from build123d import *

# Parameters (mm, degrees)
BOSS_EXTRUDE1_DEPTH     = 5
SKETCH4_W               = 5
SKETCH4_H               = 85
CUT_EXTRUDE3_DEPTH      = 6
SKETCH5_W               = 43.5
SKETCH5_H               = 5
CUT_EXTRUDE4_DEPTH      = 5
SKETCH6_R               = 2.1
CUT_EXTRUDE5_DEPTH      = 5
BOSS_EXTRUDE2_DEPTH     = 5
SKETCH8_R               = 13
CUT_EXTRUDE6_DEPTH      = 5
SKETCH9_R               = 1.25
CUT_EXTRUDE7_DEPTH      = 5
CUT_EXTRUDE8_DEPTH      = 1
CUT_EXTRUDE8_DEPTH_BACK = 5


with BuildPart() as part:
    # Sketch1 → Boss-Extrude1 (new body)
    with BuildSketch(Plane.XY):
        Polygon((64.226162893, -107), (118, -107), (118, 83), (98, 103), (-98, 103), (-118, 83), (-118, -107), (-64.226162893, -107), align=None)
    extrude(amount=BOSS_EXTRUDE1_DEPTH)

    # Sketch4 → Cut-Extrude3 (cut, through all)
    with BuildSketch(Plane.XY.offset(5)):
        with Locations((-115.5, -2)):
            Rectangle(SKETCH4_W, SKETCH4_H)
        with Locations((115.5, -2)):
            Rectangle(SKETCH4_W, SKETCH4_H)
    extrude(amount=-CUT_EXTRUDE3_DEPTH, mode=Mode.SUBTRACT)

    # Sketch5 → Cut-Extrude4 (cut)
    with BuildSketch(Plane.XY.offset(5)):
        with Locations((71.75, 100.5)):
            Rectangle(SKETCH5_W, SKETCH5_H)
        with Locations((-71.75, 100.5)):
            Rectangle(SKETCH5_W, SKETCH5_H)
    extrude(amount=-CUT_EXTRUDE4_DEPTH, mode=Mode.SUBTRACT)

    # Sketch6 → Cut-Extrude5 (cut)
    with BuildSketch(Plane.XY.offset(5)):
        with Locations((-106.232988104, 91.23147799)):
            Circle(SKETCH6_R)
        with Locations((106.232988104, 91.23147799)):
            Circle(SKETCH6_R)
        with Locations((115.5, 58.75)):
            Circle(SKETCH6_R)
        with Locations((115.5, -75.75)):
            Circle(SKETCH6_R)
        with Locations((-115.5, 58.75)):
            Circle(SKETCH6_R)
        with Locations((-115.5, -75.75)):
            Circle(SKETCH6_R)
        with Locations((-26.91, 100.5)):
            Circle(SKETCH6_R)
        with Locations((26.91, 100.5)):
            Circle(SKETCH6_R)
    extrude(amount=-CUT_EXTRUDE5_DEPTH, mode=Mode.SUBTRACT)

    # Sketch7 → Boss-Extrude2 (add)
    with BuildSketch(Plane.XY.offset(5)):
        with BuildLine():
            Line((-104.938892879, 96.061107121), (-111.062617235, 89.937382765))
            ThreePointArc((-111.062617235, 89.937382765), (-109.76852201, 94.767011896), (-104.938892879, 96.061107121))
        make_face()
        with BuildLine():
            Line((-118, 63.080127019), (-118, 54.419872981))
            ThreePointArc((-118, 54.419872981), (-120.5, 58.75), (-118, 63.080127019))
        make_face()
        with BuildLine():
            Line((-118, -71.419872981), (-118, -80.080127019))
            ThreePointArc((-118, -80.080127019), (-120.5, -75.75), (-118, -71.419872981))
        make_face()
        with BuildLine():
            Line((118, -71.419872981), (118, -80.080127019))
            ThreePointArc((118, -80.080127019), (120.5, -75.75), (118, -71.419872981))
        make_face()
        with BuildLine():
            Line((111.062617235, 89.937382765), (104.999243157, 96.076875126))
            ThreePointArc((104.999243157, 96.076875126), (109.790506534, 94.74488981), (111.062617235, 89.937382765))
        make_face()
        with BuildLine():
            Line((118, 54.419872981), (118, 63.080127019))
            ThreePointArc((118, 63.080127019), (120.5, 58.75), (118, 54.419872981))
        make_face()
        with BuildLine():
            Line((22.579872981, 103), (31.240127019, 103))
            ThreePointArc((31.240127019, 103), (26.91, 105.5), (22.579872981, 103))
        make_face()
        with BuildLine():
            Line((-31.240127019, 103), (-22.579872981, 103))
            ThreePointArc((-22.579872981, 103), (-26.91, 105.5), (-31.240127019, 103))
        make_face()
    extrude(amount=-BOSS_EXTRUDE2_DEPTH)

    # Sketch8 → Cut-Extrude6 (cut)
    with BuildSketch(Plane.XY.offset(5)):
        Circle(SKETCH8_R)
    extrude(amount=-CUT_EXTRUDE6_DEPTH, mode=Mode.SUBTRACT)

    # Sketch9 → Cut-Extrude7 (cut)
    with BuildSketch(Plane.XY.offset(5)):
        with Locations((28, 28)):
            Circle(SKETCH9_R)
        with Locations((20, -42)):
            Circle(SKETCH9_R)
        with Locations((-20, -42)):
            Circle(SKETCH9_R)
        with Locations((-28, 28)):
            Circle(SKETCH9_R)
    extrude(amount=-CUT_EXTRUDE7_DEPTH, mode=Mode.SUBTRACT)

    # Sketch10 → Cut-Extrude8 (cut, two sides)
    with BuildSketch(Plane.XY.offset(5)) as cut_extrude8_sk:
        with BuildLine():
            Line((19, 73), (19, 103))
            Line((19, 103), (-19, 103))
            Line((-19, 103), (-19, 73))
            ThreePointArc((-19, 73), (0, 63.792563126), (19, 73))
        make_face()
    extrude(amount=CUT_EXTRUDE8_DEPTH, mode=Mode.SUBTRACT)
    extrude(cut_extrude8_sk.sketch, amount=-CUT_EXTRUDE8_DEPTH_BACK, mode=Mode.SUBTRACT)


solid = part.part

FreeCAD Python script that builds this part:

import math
import FreeCAD as App
import Part
import Sketcher
from FreeCAD import Vector
Q = App.Units.Quantity

doc = App.newDocument("Part")
params = doc.addObject("Spreadsheet::Sheet", "Params")
for row, (alias, value) in enumerate([
    ("sketch1_width", "196 mm"),
    ("sketch1_width2", "236 mm"),
    ("sketch1_height", "190 mm"),
    ("pad1_length", "5 mm"),
    ("sketch2_width", "5 mm"),
    ("sketch2_height", "85 mm"),
    ("sketch3_height", "5 mm"),
    ("sketch3_width", "43.5 mm"),
    ("pocket2_length", "5 mm"),
    ("sketch4_diameter", "4.2 mm"),
    ("pocket3_length", "5 mm"),
    ("sketch5_radius", "5 mm"),
    ("pad2_length", "5 mm"),
    ("sketch6_diameter", "26 mm"),
    ("pocket4_length", "5 mm"),
    ("sketch7_diameter", "2.5 mm"),
    ("pocket5_length", "5 mm"),
    ("sketch8_width", "38 mm"),
    ("sketch8_height", "30 mm"),
], start=1):
    params.set(f"A{row}", alias)
    params.set(f"B{row}", "=" + value)
    params.setAlias(f"B{row}", alias)

body = doc.addObject("PartDesign::Body", "Body")
body.AllowCompound = True

sketch1 = body.newObject("Sketcher::SketchObject", "Sketch")
sketch1.AttachmentSupport = (doc.getObject("XY_Plane"), [""])
sketch1.MapMode = "FlatFace"
sketch1.addGeometry([
    Part.LineSegment(Vector(118, -107, 0), Vector(118, 83, 0)),
    Part.LineSegment(Vector(118, 83, 0), Vector(98, 103, 0)),
    Part.LineSegment(Vector(98, 103, 0), Vector(-98, 103, 0)),
    Part.LineSegment(Vector(-98, 103, 0), Vector(-118, 83, 0)),
    Part.LineSegment(Vector(-118, 83, 0), Vector(-118, -107, 0)),
    Part.LineSegment(Vector(-118, -107, 0), Vector(118, -107, 0)),
], False)
sketch1.addConstraint([
    Sketcher.Constraint("Coincident", 0, 2, 1, 1),
    Sketcher.Constraint("Coincident", 1, 2, 2, 1),
    Sketcher.Constraint("Coincident", 2, 2, 3, 1),
    Sketcher.Constraint("Coincident", 3, 2, 4, 1),
    Sketcher.Constraint("Coincident", 4, 2, 5, 1),
    Sketcher.Constraint("Coincident", 5, 2, 0, 1),
    Sketcher.Constraint("Vertical", 0),
    Sketcher.Constraint("Horizontal", 2),
    Sketcher.Constraint("Vertical", 4),
    Sketcher.Constraint("Horizontal", 5),
    Sketcher.Constraint("Symmetric", 0, 2, 3, 2, -2),
    Sketcher.Constraint("Perpendicular", 1, 3),
    Sketcher.Constraint("Equal", 1, 3),
    Sketcher.Constraint("DistanceX", 2, 2, 2, 1, Q("196 mm")),
    Sketcher.Constraint("DistanceX", 5, 1, 5, 2, Q("236 mm")),
    Sketcher.Constraint("DistanceY", 0, 1, 0, 2, Q("190 mm")),
    Sketcher.Constraint("DistanceY", -1, 1, 0, 2, Q("83 mm")),
])
sketch1.setExpression("Constraints[13]", "Params.sketch1_width")
sketch1.setExpression("Constraints[14]", "Params.sketch1_width2")
sketch1.setExpression("Constraints[15]", "Params.sketch1_height")
pad1 = body.newObject("PartDesign::Pad", "Pad")
pad1.Profile = sketch1
pad1.setExpression("Length", "Params.pad1_length")

sketch2 = body.newObject("Sketcher::SketchObject", "Sketch001")
sketch2.AttachmentSupport = (doc.getObject("XY_Plane"), [""])
sketch2.MapMode = "FlatFace"
sketch2.AttachmentOffset = App.Placement(Vector(0, 0, 5), App.Rotation())
sketch2.addGeometry([
    Part.LineSegment(Vector(-118, 40, 0), Vector(-118, -44, 0)),
    Part.LineSegment(Vector(-118, -44, 0), Vector(-113, -44, 0)),
    Part.LineSegment(Vector(-113, -44, 0), Vector(-113, 40, 0)),
    Part.LineSegment(Vector(-113, 40, 0), Vector(-118, 40, 0)),
    Part.LineSegment(Vector(113, 40, 0), Vector(113, -44, 0)),
    Part.LineSegment(Vector(113, -44, 0), Vector(118, -44, 0)),
    Part.LineSegment(Vector(118, -44, 0), Vector(118, 40, 0)),
    Part.LineSegment(Vector(118, 40, 0), Vector(113, 40, 0)),
], False)
sketch2.addConstraint([
    Sketcher.Constraint("Coincident", 0, 2, 1, 1),
    Sketcher.Constraint("Coincident", 1, 2, 2, 1),
    Sketcher.Constraint("Coincident", 2, 2, 3, 1),
    Sketcher.Constraint("Coincident", 3, 2, 0, 1),
    Sketcher.Constraint("Coincident", 4, 2, 5, 1),
    Sketcher.Constraint("Coincident", 5, 2, 6, 1),
    Sketcher.Constraint("Coincident", 6, 2, 7, 1),
    Sketcher.Constraint("Coincident", 7, 2, 4, 1),
    Sketcher.Constraint("Vertical", 0),
    Sketcher.Constraint("Horizontal", 1),
    Sketcher.Constraint("Vertical", 2),
    Sketcher.Constraint("Horizontal", 3),
    Sketcher.Constraint("Vertical", 4),
    Sketcher.Constraint("Horizontal", 5),
    Sketcher.Constraint("Vertical", 6),
    Sketcher.Constraint("Horizontal", 7),
    Sketcher.Constraint("Symmetric", 1, 2, 4, 2, -2),
    Sketcher.Constraint("Symmetric", 3, 2, 6, 2, -2),
    Sketcher.Constraint("DistanceX", 1, 1, 1, 2, Q("5 mm")),
    Sketcher.Constraint("DistanceY", 0, 2, 0, 1, Q("85 mm")),
    Sketcher.Constraint("DistanceX", 0, 2, -1, 1, Q("118 mm")),
    Sketcher.Constraint("DistanceY", 0, 2, -1, 1, Q("44.5 mm")),
])
sketch2.setExpression("Constraints[18]", "Params.sketch2_width")
sketch2.setExpression("Constraints[19]", "Params.sketch2_height")
pocket1 = body.newObject("PartDesign::Pocket", "Pocket")
pocket1.Profile = sketch2
pocket1.Type = "ThroughAll"

sketch3 = body.newObject("Sketcher::SketchObject", "Sketch002")
sketch3.AttachmentSupport = (doc.getObject("XY_Plane"), [""])
sketch3.MapMode = "FlatFace"
sketch3.AttachmentOffset = App.Placement(Vector(0, 0, 5), App.Rotation())
sketch3.addGeometry([
    Part.LineSegment(Vector(50, 103, 0), Vector(50, 98, 0)),
    Part.LineSegment(Vector(50, 98, 0), Vector(94, 98, 0)),
    Part.LineSegment(Vector(94, 98, 0), Vector(94, 103, 0)),
    Part.LineSegment(Vector(94, 103, 0), Vector(50, 103, 0)),
    Part.LineSegment(Vector(-94, 103, 0), Vector(-94, 98, 0)),
    Part.LineSegment(Vector(-94, 98, 0), Vector(-50, 98, 0)),
    Part.LineSegment(Vector(-50, 98, 0), Vector(-50, 103, 0)),
    Part.LineSegment(Vector(-50, 103, 0), Vector(-94, 103, 0)),
], False)
sketch3.addConstraint([
    Sketcher.Constraint("Coincident", 0, 2, 1, 1),
    Sketcher.Constraint("Coincident", 1, 2, 2, 1),
    Sketcher.Constraint("Coincident", 2, 2, 3, 1),
    Sketcher.Constraint("Coincident", 3, 2, 0, 1),
    Sketcher.Constraint("Coincident", 4, 2, 5, 1),
    Sketcher.Constraint("Coincident", 5, 2, 6, 1),
    Sketcher.Constraint("Coincident", 6, 2, 7, 1),
    Sketcher.Constraint("Coincident", 7, 2, 4, 1),
    Sketcher.Constraint("Vertical", 0),
    Sketcher.Constraint("Horizontal", 1),
    Sketcher.Constraint("Vertical", 2),
    Sketcher.Constraint("Horizontal", 3),
    Sketcher.Constraint("Vertical", 4),
    Sketcher.Constraint("Horizontal", 5),
    Sketcher.Constraint("Vertical", 6),
    Sketcher.Constraint("Horizontal", 7),
    Sketcher.Constraint("Symmetric", 1, 2, 4, 2, -2),
    Sketcher.Constraint("Symmetric", 3, 2, 6, 2, -2),
    Sketcher.Constraint("DistanceY", 0, 2, 0, 1, Q("5 mm")),
    Sketcher.Constraint("DistanceX", 1, 1, 1, 2, Q("43.5 mm")),
    Sketcher.Constraint("DistanceX", -1, 1, 0, 2, Q("50 mm")),
    Sketcher.Constraint("DistanceY", -1, 1, 0, 2, Q("98 mm")),
])
sketch3.setExpression("Constraints[18]", "Params.sketch3_height")
sketch3.setExpression("Constraints[19]", "Params.sketch3_width")
pocket2 = body.newObject("PartDesign::Pocket", "Pocket001")
pocket2.Profile = sketch3
pocket2.setExpression("Length", "Params.pocket2_length")

sketch4 = body.newObject("Sketcher::SketchObject", "Sketch003")
sketch4.AttachmentSupport = (doc.getObject("XY_Plane"), [""])
sketch4.MapMode = "FlatFace"
sketch4.AttachmentOffset = App.Placement(Vector(0, 0, 5), App.Rotation())
sketch4.addGeometry([
    Part.Circle(Vector(-106.2, 91.2, 0), Vector(0, 0, 1), 2.1),
    Part.Circle(Vector(106.2, 91.2, 0), Vector(0, 0, 1), 2.1),
    Part.Circle(Vector(115.5, 58.8, 0), Vector(0, 0, 1), 2.1),
    Part.Circle(Vector(115.5, -75.8, 0), Vector(0, 0, 1), 2.1),
    Part.Circle(Vector(-115.5, 58.8, 0), Vector(0, 0, 1), 2.1),
    Part.Circle(Vector(-115.5, -75.8, 0), Vector(0, 0, 1), 2.1),
    Part.Circle(Vector(-26.9, 100.5, 0), Vector(0, 0, 1), 2.1),
    Part.Circle(Vector(26.9, 100.5, 0), Vector(0, 0, 1), 2.1),
], False)
sketch4.addConstraint([
    Sketcher.Constraint("Equal", 0, 1),
    Sketcher.Constraint("Equal", 1, 2),
    Sketcher.Constraint("Equal", 2, 3),
    Sketcher.Constraint("Equal", 3, 4),
    Sketcher.Constraint("Equal", 4, 5),
    Sketcher.Constraint("Equal", 5, 6),
    Sketcher.Constraint("Equal", 6, 7),
    Sketcher.Constraint("Symmetric", 0, 3, 1, 3, -2),
    Sketcher.Constraint("Symmetric", 2, 3, 4, 3, -2),
    Sketcher.Constraint("Symmetric", 3, 3, 5, 3, -2),
    Sketcher.Constraint("Symmetric", 6, 3, 7, 3, -2),
    Sketcher.Constraint("Vertical", 2, 3, 3, 3),
    Sketcher.Constraint("Diameter", 0, Q("4.2 mm")),
    Sketcher.Constraint("DistanceX", 4, 3, 2, 3, Q("231 mm")),
    Sketcher.Constraint("DistanceY", -1, 1, 6, 3, Q("100.5 mm")),
    Sketcher.Constraint("DistanceY", 3, 3, 2, 3, Q("134.5 mm")),
    Sketcher.Constraint("DistanceY", -1, 1, 2, 3, Q("58.75 mm")),
    Sketcher.Constraint("DistanceX", 6, 3, -1, 1, Q("26.91 mm")),
    Sketcher.Constraint("DistanceX", 0, 3, -1, 1, Q("106.232988 mm")),
    Sketcher.Constraint("DistanceY", -1, 1, 0, 3, Q("91.231478 mm")),
])
sketch4.setExpression("Constraints[12]", "Params.sketch4_diameter")
pocket3 = body.newObject("PartDesign::Pocket", "Pocket002")
pocket3.Profile = sketch4
pocket3.setExpression("Length", "Params.pocket3_length")

sketch5 = body.newObject("Sketcher::SketchObject", "Sketch004")
sketch5.AttachmentSupport = (doc.getObject("XY_Plane"), [""])
sketch5.MapMode = "FlatFace"
sketch5.AttachmentOffset = App.Placement(Vector(0, 0, 5), App.Rotation())
sketch5.addGeometry([
    Part.LineSegment(Vector(-111.1, 89.9, 0), Vector(-104.9, 96.1, 0)),
    Part.ArcOfCircle(Part.Circle(Vector(-106.2, 91.2, 0), Vector(0, 0, 1), 5), math.radians(75), math.radians(195)),
    Part.LineSegment(Vector(-118, 54.4, 0), Vector(-118, 63.1, 0)),
    Part.ArcOfCircle(Part.Circle(Vector(-115.5, 58.8, 0), Vector(0, 0, 1), 5), math.radians(120), math.radians(240)),
    Part.LineSegment(Vector(-118, -80.1, 0), Vector(-118, -71.4, 0)),
    Part.ArcOfCircle(Part.Circle(Vector(-115.5, -75.8, 0), Vector(0, 0, 1), 5), math.radians(120), math.radians(240)),
    Part.LineSegment(Vector(118, -71.4, 0), Vector(118, -80.1, 0)),
    Part.ArcOfCircle(Part.Circle(Vector(115.5, -75.8, 0), Vector(0, 0, 1), 5), math.radians(-60), math.radians(60)),
    Part.LineSegment(Vector(105, 96.1, 0), Vector(111.1, 89.9, 0)),
    Part.ArcOfCircle(Part.Circle(Vector(106.2, 91.2, 0), Vector(0, 0, 1), 5), math.radians(-15), math.radians(104)),
    Part.LineSegment(Vector(118, 63.1, 0), Vector(118, 54.4, 0)),
    Part.ArcOfCircle(Part.Circle(Vector(115.5, 58.8, 0), Vector(0, 0, 1), 5), math.radians(-60), math.radians(60)),
    Part.LineSegment(Vector(22.6, 103, 0), Vector(31.2, 103, 0)),
    Part.ArcOfCircle(Part.Circle(Vector(26.9, 100.5, 0), Vector(0, 0, 1), 5), math.radians(30), math.radians(150)),
    Part.LineSegment(Vector(-31.2, 103, 0), Vector(-22.6, 103, 0)),
    Part.ArcOfCircle(Part.Circle(Vector(-26.9, 100.5, 0), Vector(0, 0, 1), 5), math.radians(30), math.radians(150)),
], False)
sketch5.addConstraint([
    Sketcher.Constraint("Coincident", 0, 1, 1, 2),
    Sketcher.Constraint("Coincident", 1, 1, 0, 2),
    Sketcher.Constraint("Coincident", 2, 1, 3, 2),
    Sketcher.Constraint("Coincident", 3, 1, 2, 2),
    Sketcher.Constraint("Coincident", 4, 1, 5, 2),
    Sketcher.Constraint("Coincident", 5, 1, 4, 2),
    Sketcher.Constraint("Coincident", 6, 1, 7, 2),
    Sketcher.Constraint("Coincident", 7, 1, 6, 2),
    Sketcher.Constraint("Coincident", 8, 1, 9, 2),
    Sketcher.Constraint("Coincident", 9, 1, 8, 2),
    Sketcher.Constraint("Coincident", 10, 1, 11, 2),
    Sketcher.Constraint("Coincident", 11, 1, 10, 2),
    Sketcher.Constraint("Coincident", 12, 1, 13, 2),
    Sketcher.Constraint("Coincident", 13, 1, 12, 2),
    Sketcher.Constraint("Coincident", 14, 1, 15, 2),
    Sketcher.Constraint("Coincident", 15, 1, 14, 2),
    Sketcher.Constraint("Vertical", 2),
    Sketcher.Constraint("Vertical", 4),
    Sketcher.Constraint("Vertical", 6),
    Sketcher.Constraint("Vertical", 10),
    Sketcher.Constraint("Horizontal", 12),
    Sketcher.Constraint("Horizontal", 14),
    Sketcher.Constraint("Equal", 1, 3),
    Sketcher.Constraint("Equal", 3, 5),
    Sketcher.Constraint("Equal", 5, 7),
    Sketcher.Constraint("Equal", 7, 9),
    Sketcher.Constraint("Equal", 9, 11),
    Sketcher.Constraint("Equal", 11, 13),
    Sketcher.Constraint("Equal", 13, 15),
    Sketcher.Constraint("Symmetric", 5, 3, 7, 3, -2),
    Sketcher.Constraint("Symmetric", 1, 3, 9, 3, -2),
    Sketcher.Constraint("Symmetric", 3, 3, 11, 3, -2),
    Sketcher.Constraint("Symmetric", 13, 3, 15, 3, -2),
    Sketcher.Constraint("Horizontal", 5, 1, 6, 1),
    Sketcher.Constraint("Horizontal", 0, 1, 9, 1),
    Sketcher.Constraint("Horizontal", 3, 1, 10, 1),
    Sketcher.Constraint("Horizontal", 13, 1, 14, 1),
    Sketcher.Constraint("Vertical", 3, 3, 5, 3),
    Sketcher.Constraint("Vertical", 3, 1, 4, 1),
    Sketcher.Constraint("Equal", 14, 2),
    Sketcher.Constraint("Radius", 1, Q("5 mm")),
    Sketcher.Constraint("Angle", 0, Q("45 deg")),
    Sketcher.Constraint("DistanceX", 2, 1, -1, 1, Q("118 mm")),
    Sketcher.Constraint("DistanceY", -1, 1, 12, 1, Q("103 mm")),
    Sketcher.Constraint("DistanceX", 5, 3, 7, 3, Q("231 mm")),
    Sketcher.Constraint("DistanceY", 5, 3, 3, 3, Q("134.5 mm")),
    Sketcher.Constraint("DistanceY", -1, 1, 3, 3, Q("58.75 mm")),
    Sketcher.Constraint("DistanceX", -1, 1, 13, 3, Q("26.91 mm")),
    Sketcher.Constraint("DistanceX", 1, 3, -1, 1, Q("106.232988 mm")),
    Sketcher.Constraint("DistanceX", 0, 1, 1, 3, Q("4.829629 mm")),
    Sketcher.Constraint("DistanceY", 2, 1, 0, 1, Q("35.51751 mm")),
    Sketcher.Constraint("DistanceY", 6, 1, 8, 1, Q("167.496748 mm")),
])
sketch5.setExpression("Constraints[40]", "Params.sketch5_radius")
pad2 = body.newObject("PartDesign::Pad", "Pad001")
pad2.Profile = sketch5
pad2.setExpression("Length", "Params.pad2_length")
pad2.Reversed = True

sketch6 = body.newObject("Sketcher::SketchObject", "Sketch005")
sketch6.AttachmentSupport = (doc.getObject("XY_Plane"), [""])
sketch6.MapMode = "FlatFace"
sketch6.AttachmentOffset = App.Placement(Vector(0, 0, 5), App.Rotation())
sketch6.addGeometry(Part.Circle(Vector(0, 0, 0), Vector(0, 0, 1), 13), False)
sketch6.addConstraint([
    Sketcher.Constraint("Coincident", 0, 3, -1, 1),
    Sketcher.Constraint("Diameter", 0, Q("26 mm")),
])
sketch6.setExpression("Constraints[1]", "Params.sketch6_diameter")
pocket4 = body.newObject("PartDesign::Pocket", "Pocket003")
pocket4.Profile = sketch6
pocket4.setExpression("Length", "Params.pocket4_length")

sketch7 = body.newObject("Sketcher::SketchObject", "Sketch006")
sketch7.AttachmentSupport = (doc.getObject("XY_Plane"), [""])
sketch7.MapMode = "FlatFace"
sketch7.AttachmentOffset = App.Placement(Vector(0, 0, 5), App.Rotation())
sketch7.addGeometry([
    Part.Circle(Vector(28, 28, 0), Vector(0, 0, 1), 1.2),
    Part.Circle(Vector(20, -42, 0), Vector(0, 0, 1), 1.2),
    Part.Circle(Vector(-20, -42, 0), Vector(0, 0, 1), 1.2),
    Part.Circle(Vector(-28, 28, 0), Vector(0, 0, 1), 1.2),
], False)
sketch7.addConstraint([
    Sketcher.Constraint("Equal", 0, 1),
    Sketcher.Constraint("Equal", 1, 2),
    Sketcher.Constraint("Equal", 2, 3),
    Sketcher.Constraint("Symmetric", 1, 3, 2, 3, -2),
    Sketcher.Constraint("Symmetric", 0, 3, 3, 3, -2),
    Sketcher.Constraint("Diameter", 0, Q("2.5 mm")),
    Sketcher.Constraint("DistanceX", -1, 1, 0, 3, Q("28 mm")),
    Sketcher.Constraint("DistanceY", -1, 1, 0, 3, Q("28 mm")),
    Sketcher.Constraint("DistanceX", -1, 1, 1, 3, Q("20 mm")),
    Sketcher.Constraint("DistanceY", 1, 3, -1, 1, Q("42 mm")),
])
sketch7.setExpression("Constraints[5]", "Params.sketch7_diameter")
pocket5 = body.newObject("PartDesign::Pocket", "Pocket004")
pocket5.Profile = sketch7
pocket5.setExpression("Length", "Params.pocket5_length")

sketch8 = body.newObject("Sketcher::SketchObject", "Sketch007")
sketch8.AttachmentSupport = (doc.getObject("XY_Plane"), [""])
sketch8.MapMode = "FlatFace"
sketch8.AttachmentOffset = App.Placement(Vector(0, 0, 5), App.Rotation())
sketch8.addGeometry([
    Part.LineSegment(Vector(19, 73, 0), Vector(19, 103, 0)),
    Part.LineSegment(Vector(19, 103, 0), Vector(-19, 103, 0)),
    Part.LineSegment(Vector(-19, 103, 0), Vector(-19, 73, 0)),
    Part.ArcOfCircle(Part.Circle(Vector(0, 88, 0), Vector(0, 0, 1), 24), math.radians(-142), math.radians(-38)),
], False)
sketch8.addConstraint([
    Sketcher.Constraint("Coincident", 0, 2, 1, 1),
    Sketcher.Constraint("Coincident", 1, 2, 2, 1),
    Sketcher.Constraint("Coincident", 2, 2, 3, 1),
    Sketcher.Constraint("Coincident", 3, 2, 0, 1),
    Sketcher.Constraint("Vertical", 0),
    Sketcher.Constraint("Horizontal", 1),
    Sketcher.Constraint("Vertical", 2),
    Sketcher.Constraint("Symmetric", 2, 2, 3, 2, -2),
    Sketcher.Constraint("DistanceX", 1, 2, 1, 1, Q("38 mm")),
    Sketcher.Constraint("DistanceY", 0, 1, 0, 2, Q("30 mm")),
    Sketcher.Constraint("DistanceY", -1, 1, 3, 3, Q("88 mm")),
    Sketcher.Constraint("DistanceY", -1, 1, 0, 2, Q("103 mm")),
])
sketch8.setExpression("Constraints[8]", "Params.sketch8_width")
sketch8.setExpression("Constraints[9]", "Params.sketch8_height")
pocket6 = body.newObject("PartDesign::Pocket", "Pocket005")
pocket6.Profile = sketch8
pocket6.Type = "ThroughAll"
pocket6.Midplane = True

doc.recompute()
